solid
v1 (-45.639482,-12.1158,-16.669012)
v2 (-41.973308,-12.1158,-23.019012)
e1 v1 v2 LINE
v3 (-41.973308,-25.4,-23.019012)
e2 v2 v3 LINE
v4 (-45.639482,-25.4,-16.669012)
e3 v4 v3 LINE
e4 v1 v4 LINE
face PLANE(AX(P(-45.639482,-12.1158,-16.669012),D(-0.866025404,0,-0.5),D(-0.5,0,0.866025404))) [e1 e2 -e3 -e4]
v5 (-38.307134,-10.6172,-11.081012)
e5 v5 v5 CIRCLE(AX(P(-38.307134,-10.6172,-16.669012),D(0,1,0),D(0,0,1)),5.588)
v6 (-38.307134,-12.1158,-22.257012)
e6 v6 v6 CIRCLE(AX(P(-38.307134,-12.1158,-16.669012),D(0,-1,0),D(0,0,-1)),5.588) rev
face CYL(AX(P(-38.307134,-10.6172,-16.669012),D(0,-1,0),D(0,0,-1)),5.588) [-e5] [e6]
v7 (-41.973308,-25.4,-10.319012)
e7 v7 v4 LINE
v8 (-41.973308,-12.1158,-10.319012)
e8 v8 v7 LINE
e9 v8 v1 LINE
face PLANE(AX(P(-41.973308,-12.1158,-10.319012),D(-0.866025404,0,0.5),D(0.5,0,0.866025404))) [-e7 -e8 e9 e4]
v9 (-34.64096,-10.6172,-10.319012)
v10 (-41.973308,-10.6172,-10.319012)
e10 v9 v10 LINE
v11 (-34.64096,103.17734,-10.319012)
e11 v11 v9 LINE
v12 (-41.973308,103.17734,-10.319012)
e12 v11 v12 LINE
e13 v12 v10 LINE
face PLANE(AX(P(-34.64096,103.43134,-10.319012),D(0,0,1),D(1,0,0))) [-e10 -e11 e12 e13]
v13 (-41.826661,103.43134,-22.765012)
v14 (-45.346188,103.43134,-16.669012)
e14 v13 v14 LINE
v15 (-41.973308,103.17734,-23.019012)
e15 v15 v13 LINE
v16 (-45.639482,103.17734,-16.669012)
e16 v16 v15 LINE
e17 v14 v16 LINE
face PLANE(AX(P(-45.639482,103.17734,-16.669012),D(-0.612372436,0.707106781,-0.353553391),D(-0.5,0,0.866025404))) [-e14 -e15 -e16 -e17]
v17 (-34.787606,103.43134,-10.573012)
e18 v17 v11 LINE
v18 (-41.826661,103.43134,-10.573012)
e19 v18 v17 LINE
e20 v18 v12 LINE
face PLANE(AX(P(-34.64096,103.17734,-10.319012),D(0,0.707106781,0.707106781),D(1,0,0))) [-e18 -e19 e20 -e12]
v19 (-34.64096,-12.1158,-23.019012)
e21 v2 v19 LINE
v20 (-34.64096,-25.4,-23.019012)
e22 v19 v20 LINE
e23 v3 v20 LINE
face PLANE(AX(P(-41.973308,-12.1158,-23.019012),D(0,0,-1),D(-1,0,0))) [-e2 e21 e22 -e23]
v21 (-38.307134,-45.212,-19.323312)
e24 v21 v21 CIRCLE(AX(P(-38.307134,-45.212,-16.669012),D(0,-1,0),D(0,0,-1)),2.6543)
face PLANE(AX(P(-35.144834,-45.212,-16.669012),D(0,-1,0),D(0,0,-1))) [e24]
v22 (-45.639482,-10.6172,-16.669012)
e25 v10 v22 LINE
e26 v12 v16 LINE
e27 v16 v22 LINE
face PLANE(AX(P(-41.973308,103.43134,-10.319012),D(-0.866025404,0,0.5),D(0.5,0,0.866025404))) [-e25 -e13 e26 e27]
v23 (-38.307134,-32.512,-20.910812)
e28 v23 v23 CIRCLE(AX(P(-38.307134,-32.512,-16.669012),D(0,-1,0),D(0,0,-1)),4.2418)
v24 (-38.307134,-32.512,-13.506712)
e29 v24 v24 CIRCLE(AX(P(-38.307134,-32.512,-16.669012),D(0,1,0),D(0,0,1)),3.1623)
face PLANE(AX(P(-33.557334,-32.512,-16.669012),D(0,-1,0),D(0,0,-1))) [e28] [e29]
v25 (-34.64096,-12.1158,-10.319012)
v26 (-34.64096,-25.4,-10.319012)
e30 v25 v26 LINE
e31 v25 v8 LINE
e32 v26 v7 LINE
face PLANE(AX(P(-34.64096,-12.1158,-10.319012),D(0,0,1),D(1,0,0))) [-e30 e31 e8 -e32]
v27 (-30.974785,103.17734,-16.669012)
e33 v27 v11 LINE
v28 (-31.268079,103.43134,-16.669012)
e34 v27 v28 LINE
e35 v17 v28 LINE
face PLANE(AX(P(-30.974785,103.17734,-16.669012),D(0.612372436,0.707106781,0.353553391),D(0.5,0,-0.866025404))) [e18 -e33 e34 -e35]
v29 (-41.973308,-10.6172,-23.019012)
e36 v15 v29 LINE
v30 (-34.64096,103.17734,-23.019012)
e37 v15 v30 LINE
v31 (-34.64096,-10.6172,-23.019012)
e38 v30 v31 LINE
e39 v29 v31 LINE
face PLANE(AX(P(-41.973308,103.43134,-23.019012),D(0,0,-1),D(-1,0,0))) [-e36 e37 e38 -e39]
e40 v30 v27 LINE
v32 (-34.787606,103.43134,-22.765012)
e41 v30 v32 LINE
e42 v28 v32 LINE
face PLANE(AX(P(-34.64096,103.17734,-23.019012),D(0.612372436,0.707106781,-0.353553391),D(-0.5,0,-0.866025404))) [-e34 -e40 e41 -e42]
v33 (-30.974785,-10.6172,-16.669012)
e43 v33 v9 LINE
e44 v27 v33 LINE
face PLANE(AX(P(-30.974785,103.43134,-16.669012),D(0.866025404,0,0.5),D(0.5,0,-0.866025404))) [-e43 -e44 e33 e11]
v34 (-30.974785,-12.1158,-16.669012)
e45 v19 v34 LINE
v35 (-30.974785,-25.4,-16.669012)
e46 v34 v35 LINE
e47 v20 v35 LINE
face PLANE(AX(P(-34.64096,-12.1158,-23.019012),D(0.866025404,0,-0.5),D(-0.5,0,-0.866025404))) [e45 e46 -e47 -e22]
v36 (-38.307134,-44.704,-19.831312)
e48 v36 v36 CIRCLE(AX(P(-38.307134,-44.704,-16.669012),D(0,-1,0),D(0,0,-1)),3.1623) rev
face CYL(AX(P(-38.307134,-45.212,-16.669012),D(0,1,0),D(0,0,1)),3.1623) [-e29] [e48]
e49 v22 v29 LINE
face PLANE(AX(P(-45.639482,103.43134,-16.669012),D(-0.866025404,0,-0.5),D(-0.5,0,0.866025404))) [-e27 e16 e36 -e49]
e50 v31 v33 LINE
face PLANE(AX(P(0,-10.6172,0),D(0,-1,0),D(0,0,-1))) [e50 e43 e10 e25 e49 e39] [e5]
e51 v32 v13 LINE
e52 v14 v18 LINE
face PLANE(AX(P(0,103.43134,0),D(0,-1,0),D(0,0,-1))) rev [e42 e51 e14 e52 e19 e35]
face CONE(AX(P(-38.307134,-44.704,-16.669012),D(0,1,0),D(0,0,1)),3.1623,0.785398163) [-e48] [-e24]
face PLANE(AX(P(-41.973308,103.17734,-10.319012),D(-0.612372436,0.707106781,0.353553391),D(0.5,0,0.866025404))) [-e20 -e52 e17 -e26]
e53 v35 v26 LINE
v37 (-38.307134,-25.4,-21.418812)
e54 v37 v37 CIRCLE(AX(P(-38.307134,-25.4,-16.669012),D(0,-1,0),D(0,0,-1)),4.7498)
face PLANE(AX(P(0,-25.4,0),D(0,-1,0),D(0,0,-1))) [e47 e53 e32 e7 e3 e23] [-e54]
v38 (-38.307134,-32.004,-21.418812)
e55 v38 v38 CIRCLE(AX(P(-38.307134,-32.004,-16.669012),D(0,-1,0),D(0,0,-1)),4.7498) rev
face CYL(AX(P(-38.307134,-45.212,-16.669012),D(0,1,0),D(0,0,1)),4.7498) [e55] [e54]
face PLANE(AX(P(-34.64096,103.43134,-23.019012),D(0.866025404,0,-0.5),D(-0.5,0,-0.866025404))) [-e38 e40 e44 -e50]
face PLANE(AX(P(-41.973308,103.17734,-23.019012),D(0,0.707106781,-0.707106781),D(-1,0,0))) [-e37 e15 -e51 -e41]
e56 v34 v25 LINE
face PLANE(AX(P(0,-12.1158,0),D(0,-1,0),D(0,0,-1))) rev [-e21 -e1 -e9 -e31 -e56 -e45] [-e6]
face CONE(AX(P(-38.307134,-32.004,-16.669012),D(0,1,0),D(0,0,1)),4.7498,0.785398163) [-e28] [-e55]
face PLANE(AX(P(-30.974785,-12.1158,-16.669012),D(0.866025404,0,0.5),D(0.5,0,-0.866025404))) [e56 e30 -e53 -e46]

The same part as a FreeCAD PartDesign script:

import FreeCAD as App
import Part
import Sketcher
Q = App.Units.Quantity


def edges_at(feature, points):
    """Names of the edges that pass closest to the given points."""
    edges = feature.Shape.Edges
    near = lambda p: min(range(len(edges)), key=lambda i: edges[i].distToShape(Part.Vertex(*p))[0])
    return sorted({f"Edge{near(p) + 1}" for p in points})


def add_polygon(sketch, points):
    """Adds a closed chain of lines whose ends are joined by coincident constraints."""
    first, n = sketch.GeometryCount, len(points)
    for a, b in zip(points, points[1:] + points[:1]):
        sketch.addGeometry(Part.LineSegment(App.Vector(*a, 0), App.Vector(*b, 0)), False)
    for i in range(n):
        sketch.addConstraint(Sketcher.Constraint("Coincident", first + i, 2, first + (i + 1) % n, 1))

doc = App.newDocument("Part")
params = doc.addObject("Spreadsheet::Sheet", "Params")
for row, (alias, value) in enumerate([
    ("pad1_length", "0.523 in"),
    ("sketch2_diameter", "0.44 in"),
    ("pad2_length", "0.059 in"),
    ("pad3_length", "4.4901 in"),
    ("sketch4_height", "0.5 in"),
    ("sketch4_height2", "0.78 in"),
    ("sketch4_width", "0.187 in"),
    ("sketch4_width2", "0.0625 in"),
    ("revolution_angle", "360 deg"),
    ("chamfer_size", "0.02 in"),
    ("chamfer2_size", "0.01 in"),
], start=1):
    params.set(f"A{row}", alias)
    params.set(f"B{row}", "=" + value)
    params.setAlias(f"B{row}", alias)

body = doc.addObject("PartDesign::Body", "Body")

# Sketch on XZ plane
sketch1 = body.newObject("Sketcher::SketchObject", "Sketch")
sketch1.AttachmentSupport = (doc.getObject("XZ_Plane"), [""])
sketch1.MapMode = "FlatFace"
sketch1.AttachmentOffset = App.Placement(App.Vector(0, 0, 1 * 25.4), App.Rotation())
add_polygon(sketch1, [(-46, -17), (-42, -23), (-35, -23), (-31, -17), (-35, -10), (-42, -10)])  # lines 0-5
sketch1.addConstraint(Sketcher.Constraint("Horizontal", 1))
sketch1.addConstraint(Sketcher.Constraint("Horizontal", 4))
sketch1.addConstraint(Sketcher.Constraint("Parallel", 0, 3))
sketch1.addConstraint(Sketcher.Constraint("Parallel", 2, 5))
sketch1.addConstraint(Sketcher.Constraint("Horizontal", 2, 2, 5, 2))
sketch1.addConstraint(Sketcher.Constraint("Vertical", 1, 2, 3, 2))
sketch1.addConstraint(Sketcher.Constraint("Vertical", 0, 2, 4, 2))
sketch1.addConstraint(Sketcher.Constraint("Angle", 0, Q("-60 deg")))
sketch1.addConstraint(Sketcher.Constraint("DistanceY", 1, 2, 3, 2, Q("0.5 in")))
sketch1.addConstraint(Sketcher.Constraint("DistanceX", 1, 1, 1, 2, Q("7.332348 mm")))
sketch1.addConstraint(Sketcher.Constraint("DistanceY", 0, 2, -1, 1, Q("23.019012 mm")))
sketch1.addConstraint(Sketcher.Constraint("DistanceX", 1, 2, -1, 1, Q("34.64096 mm")))
pad1 = body.newObject("PartDesign::Pad", "Pad")
pad1.Profile = sketch1
pad1.setExpression("Length", "Params.pad1_length")
pad1.Reversed = True

# Sketch on XZ plane
sketch2 = body.newObject("Sketcher::SketchObject", "Sketch001")
sketch2.AttachmentSupport = (doc.getObject("XZ_Plane"), [""])
sketch2.MapMode = "FlatFace"
sketch2.AttachmentOffset = App.Placement(App.Vector(0, 0, 0.477 * 25.4), App.Rotation())
sketch2.addGeometry(Part.Circle(App.Vector(-38, -17, 0), App.Vector(0, 0, 1), 6), False)
sketch2.addConstraint(Sketcher.Constraint("Diameter", 0, Q("0.44 in")))
sketch2.addConstraint(Sketcher.Constraint("DistanceY", 0, 3, -1, 1, Q("16.669012 mm")))
sketch2.addConstraint(Sketcher.Constraint("DistanceX", 0, 3, -1, 1, Q("38.307134 mm")))
sketch2.setExpression("Constraints[0]", "Params.sketch2_diameter")
pad2 = body.newObject("PartDesign::Pad", "Pad001")
pad2.Profile = sketch2
pad2.setExpression("Length", "Params.pad2_length")
pad2.Reversed = True

# Sketch on XZ plane
sketch3 = body.newObject("Sketcher::SketchObject", "Sketch002")
sketch3.AttachmentSupport = (doc.getObject("XZ_Plane"), [""])
sketch3.MapMode = "FlatFace"
sketch3.AttachmentOffset = App.Placement(App.Vector(0, 0, 0.418 * 25.4), App.Rotation())
add_polygon(sketch3, [(-46, -17), (-42, -23), (-35, -23), (-31, -17), (-35, -10), (-42, -10)])  # lines 0-5
sketch3.addConstraint(Sketcher.Constraint("Horizontal", 1))
sketch3.addConstraint(Sketcher.Constraint("Horizontal", 4))
sketch3.addConstraint(Sketcher.Constraint("Parallel", 0, 3))
sketch3.addConstraint(Sketcher.Constraint("Parallel", 2, 5))
sketch3.addConstraint(Sketcher.Constraint("Horizontal", 2, 2, 5, 2))
sketch3.addConstraint(Sketcher.Constraint("Vertical", 1, 2, 3, 2))
sketch3.addConstraint(Sketcher.Constraint("Vertical", 0, 2, 4, 2))
sketch3.addConstraint(Sketcher.Constraint("Angle", 0, Q("-60 deg")))
sketch3.addConstraint(Sketcher.Constraint("DistanceY", 1, 2, 3, 2, Q("0.5 in")))
sketch3.addConstraint(Sketcher.Constraint("DistanceX", 1, 1, 1, 2, Q("7.332348 mm")))
sketch3.addConstraint(Sketcher.Constraint("DistanceY", 0, 2, -1, 1, Q("23.019012 mm")))
sketch3.addConstraint(Sketcher.Constraint("DistanceX", 1, 2, -1, 1, Q("34.64096 mm")))
pad3 = body.newObject("PartDesign::Pad", "Pad002")
pad3.Profile = sketch3
pad3.setExpression("Length", "Params.pad3_length")
pad3.Reversed = True

# Sketch on XY plane
sketch4 = body.newObject("Sketcher::SketchObject", "Sketch003")
sketch4.AttachmentSupport = (doc.getObject("XY_Plane"), [""])
sketch4.MapMode = "FlatFace"
sketch4.AttachmentOffset = App.Placement(App.Vector(0, 0, -16.669012), App.Rotation())
add_polygon(sketch4, [(-35.1, -45.2), (-38.3, -45.2), (-38.3, -25.4), (-33.6, -25.4), (-33.6, -32.5), (-35.1, -32.5)])  # lines 0-5
sketch4.addGeometry(Part.LineSegment(App.Vector(-38.3, -45.2, 0), App.Vector(-38.3, -25.4, 0)), True)  # axis
sketch4.addConstraint(Sketcher.Constraint("Horizontal", 0))
sketch4.addConstraint(Sketcher.Constraint("Vertical", 1))
sketch4.addConstraint(Sketcher.Constraint("Horizontal", 2))
sketch4.addConstraint(Sketcher.Constraint("Vertical", 3))
sketch4.addConstraint(Sketcher.Constraint("Horizontal", 4))
sketch4.addConstraint(Sketcher.Constraint("Vertical", 5))
sketch4.addConstraint(Sketcher.Constraint("Vertical", 6))
sketch4.addConstraint(Sketcher.Constraint("Coincident", 6, 1, 0, 2))
sketch4.addConstraint(Sketcher.Constraint("Horizontal", 2, 2, 6, 2))
sketch4.addConstraint(Sketcher.Constraint("DistanceY", 5, 2, 5, 1, Q("0.5 in")))
sketch4.addConstraint(Sketcher.Constraint("DistanceY", 1, 2, -1, 1, Q("1 in")))
sketch4.addConstraint(Sketcher.Constraint("DistanceY", 1, 1, 1, 2, Q("0.78 in")))
sketch4.addConstraint(Sketcher.Constraint("DistanceX", 2, 1, 2, 2, Q("0.187 in")))
sketch4.addConstraint(Sketcher.Constraint("DistanceX", 4, 2, 4, 1, Q("0.0625 in")))
sketch4.addConstraint(Sketcher.Constraint("DistanceX", 0, 2, -1, 1, Q("38.307134 mm")))
sketch4.setExpression("Constraints[15]", "Params.sketch4_height")
sketch4.setExpression("Constraints[17]", "Params.sketch4_height2")
sketch4.setExpression("Constraints[18]", "Params.sketch4_width")
sketch4.setExpression("Constraints[19]", "Params.sketch4_width2")
revolution = body.newObject("PartDesign::Revolution", "Revolution")
revolution.Profile = sketch4
revolution.ReferenceAxis = (sketch4, ["Axis0"])
revolution.setExpression("Angle", "Params.revolution_angle")
doc.recompute()

chamfer = body.newObject("PartDesign::Chamfer", "Chamfer")
chamfer.Base = (revolution, edges_at(revolution, [(-41.469, -45.212, -16.669), (-43.057, -32.512, -16.669)]))
chamfer.setExpression("Size", "Params.chamfer_size")
doc.recompute()

chamfer2 = body.newObject("PartDesign::Chamfer", "Chamfer001")
chamfer2.Base = (chamfer, edges_at(chamfer, [
    (-43.806, 103.431, -13.494),
    (-38.307, 103.431, -10.319),
    (-32.808, 103.431, -13.494),
    (-32.808, 103.431, -19.844),
    (-38.307, 103.431, -23.019),
    (-43.806, 103.431, -19.844),
]))
chamfer2.setExpression("Size", "Params.chamfer2_size")

doc.recompute()
